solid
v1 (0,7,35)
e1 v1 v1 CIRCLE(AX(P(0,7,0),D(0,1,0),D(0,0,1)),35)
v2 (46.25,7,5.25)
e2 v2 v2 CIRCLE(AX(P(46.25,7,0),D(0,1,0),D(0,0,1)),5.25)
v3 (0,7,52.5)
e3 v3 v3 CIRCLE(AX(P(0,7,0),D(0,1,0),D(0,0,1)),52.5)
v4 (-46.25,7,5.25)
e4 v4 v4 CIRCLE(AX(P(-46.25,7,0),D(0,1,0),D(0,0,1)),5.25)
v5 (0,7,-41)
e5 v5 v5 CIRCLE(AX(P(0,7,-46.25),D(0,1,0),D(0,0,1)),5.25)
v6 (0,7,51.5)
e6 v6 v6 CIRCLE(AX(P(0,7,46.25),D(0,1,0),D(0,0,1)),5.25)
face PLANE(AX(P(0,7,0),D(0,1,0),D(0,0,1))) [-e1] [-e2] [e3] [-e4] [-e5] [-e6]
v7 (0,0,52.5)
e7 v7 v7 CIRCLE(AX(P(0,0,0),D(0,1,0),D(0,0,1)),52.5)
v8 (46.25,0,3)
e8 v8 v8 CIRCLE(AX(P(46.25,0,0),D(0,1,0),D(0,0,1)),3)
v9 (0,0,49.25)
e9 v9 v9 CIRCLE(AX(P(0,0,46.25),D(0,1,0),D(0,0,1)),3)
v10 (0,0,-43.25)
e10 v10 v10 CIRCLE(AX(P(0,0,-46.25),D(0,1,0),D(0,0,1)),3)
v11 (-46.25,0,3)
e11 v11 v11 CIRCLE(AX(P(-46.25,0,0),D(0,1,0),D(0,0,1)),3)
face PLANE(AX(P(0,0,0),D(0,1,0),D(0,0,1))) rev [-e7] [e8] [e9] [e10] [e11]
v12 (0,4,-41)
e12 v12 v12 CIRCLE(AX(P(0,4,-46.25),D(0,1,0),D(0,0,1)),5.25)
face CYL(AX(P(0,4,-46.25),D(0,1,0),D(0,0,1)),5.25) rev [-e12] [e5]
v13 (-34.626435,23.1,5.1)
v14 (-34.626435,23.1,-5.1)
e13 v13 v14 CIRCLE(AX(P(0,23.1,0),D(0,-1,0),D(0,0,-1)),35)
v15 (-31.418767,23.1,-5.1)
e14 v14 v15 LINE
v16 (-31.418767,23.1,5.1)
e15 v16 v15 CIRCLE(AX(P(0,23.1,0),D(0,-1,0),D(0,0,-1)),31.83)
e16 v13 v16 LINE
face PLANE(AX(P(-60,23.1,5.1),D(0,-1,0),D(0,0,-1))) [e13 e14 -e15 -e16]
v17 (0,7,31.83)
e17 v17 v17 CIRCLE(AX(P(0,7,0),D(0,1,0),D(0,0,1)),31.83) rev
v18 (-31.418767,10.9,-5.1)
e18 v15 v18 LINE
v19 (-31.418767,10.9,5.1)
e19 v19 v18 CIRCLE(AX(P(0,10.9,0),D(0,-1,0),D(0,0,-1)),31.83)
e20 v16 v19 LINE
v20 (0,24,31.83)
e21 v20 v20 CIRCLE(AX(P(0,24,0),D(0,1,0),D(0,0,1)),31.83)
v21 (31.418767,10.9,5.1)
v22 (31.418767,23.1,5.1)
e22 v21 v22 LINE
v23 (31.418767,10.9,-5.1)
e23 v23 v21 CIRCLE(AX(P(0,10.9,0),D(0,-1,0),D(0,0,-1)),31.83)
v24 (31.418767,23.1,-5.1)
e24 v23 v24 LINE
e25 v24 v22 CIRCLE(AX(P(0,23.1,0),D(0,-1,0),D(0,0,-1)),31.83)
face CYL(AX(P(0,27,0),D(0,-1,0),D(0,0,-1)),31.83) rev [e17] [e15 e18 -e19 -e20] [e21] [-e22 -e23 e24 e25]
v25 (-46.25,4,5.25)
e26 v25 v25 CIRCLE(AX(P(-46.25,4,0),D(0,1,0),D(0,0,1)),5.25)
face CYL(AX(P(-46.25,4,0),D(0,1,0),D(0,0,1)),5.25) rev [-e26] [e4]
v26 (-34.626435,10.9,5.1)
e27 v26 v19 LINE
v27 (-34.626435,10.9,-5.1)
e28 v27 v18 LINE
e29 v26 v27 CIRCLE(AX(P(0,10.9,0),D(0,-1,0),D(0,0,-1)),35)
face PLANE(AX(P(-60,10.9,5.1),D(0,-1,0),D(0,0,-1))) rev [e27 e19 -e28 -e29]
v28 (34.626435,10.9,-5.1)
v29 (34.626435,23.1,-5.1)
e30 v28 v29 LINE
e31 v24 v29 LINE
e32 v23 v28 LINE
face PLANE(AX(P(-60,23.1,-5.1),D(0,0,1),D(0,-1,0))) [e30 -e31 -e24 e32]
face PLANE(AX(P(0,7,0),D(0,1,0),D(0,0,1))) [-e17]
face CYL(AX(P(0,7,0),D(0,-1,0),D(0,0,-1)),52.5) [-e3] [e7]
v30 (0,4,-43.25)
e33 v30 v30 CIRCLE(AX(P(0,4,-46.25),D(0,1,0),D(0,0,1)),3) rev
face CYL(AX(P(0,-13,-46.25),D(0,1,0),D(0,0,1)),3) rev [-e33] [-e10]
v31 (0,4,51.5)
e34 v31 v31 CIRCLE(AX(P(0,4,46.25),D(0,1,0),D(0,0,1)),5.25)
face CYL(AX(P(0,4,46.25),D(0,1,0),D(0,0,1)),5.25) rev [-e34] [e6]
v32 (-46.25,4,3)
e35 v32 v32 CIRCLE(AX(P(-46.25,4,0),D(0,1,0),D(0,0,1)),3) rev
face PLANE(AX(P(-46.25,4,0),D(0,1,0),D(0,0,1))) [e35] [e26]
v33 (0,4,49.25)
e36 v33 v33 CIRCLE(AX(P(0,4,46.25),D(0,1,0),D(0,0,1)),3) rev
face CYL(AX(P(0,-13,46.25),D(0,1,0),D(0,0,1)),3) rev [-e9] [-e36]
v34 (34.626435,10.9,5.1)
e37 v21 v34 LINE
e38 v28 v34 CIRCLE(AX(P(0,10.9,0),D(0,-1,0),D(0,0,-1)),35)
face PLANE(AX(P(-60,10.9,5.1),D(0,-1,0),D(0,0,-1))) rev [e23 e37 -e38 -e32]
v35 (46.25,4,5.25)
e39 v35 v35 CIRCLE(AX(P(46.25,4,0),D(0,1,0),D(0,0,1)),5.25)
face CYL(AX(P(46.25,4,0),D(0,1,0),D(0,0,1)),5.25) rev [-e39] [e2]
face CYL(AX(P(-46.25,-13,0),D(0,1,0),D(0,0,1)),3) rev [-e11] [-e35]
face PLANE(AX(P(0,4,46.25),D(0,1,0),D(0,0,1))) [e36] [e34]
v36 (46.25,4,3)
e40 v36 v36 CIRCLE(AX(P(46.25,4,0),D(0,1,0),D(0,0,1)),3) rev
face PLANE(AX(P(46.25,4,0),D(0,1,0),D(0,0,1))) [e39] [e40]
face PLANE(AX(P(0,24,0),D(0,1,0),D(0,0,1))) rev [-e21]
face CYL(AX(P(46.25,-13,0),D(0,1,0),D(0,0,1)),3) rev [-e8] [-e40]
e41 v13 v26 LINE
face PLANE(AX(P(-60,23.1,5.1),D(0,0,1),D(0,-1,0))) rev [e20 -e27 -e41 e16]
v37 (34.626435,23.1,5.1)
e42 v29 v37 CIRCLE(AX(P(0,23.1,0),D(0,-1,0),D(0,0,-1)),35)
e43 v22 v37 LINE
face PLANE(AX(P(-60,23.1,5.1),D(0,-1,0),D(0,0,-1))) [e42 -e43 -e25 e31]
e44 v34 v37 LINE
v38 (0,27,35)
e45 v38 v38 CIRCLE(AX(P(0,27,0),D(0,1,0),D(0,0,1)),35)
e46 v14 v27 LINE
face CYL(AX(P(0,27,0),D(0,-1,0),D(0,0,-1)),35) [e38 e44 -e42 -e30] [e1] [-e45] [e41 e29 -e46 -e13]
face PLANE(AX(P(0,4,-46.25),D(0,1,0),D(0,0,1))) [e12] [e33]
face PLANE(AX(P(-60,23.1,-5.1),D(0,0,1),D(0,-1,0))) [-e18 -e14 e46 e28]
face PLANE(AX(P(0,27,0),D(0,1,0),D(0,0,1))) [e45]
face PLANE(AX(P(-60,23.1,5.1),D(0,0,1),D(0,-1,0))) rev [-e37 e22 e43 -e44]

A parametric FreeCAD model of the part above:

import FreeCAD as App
import Part
import Sketcher
Q = App.Units.Quantity


def add_polygon(sketch, points):
    """Adds a closed chain of lines whose ends are joined by coincident constraints."""
    first, n = sketch.GeometryCount, len(points)
    for a, b in zip(points, points[1:] + points[:1]):
        sketch.addGeometry(Part.LineSegment(App.Vector(*a, 0), App.Vector(*b, 0)), False)
    for i in range(n):
        sketch.addConstraint(Sketcher.Constraint("Coincident", first + i, 2, first + (i + 1) % n, 1))

doc = App.newDocument("Part")
body = doc.addObject("PartDesign::Body", "Body")

sketch1 = body.newObject("Sketcher::SketchObject", "Sketch")
sketch1.AttachmentSupport = (doc.getObject("XZ_Plane"), [""])
sketch1.MapMode = "FlatFace"
sketch1.addGeometry(Part.Circle(App.Vector(0, 0, 0), App.Vector(0, 0, 1), 52), False)
sketch1.addConstraint([
    Sketcher.Constraint("Coincident", 0, 3, -1, 1),
    Sketcher.Constraint("Diameter", 0, Q("105 mm")),
])
pad1 = body.newObject("PartDesign::Pad", "Pad")
pad1.Profile = sketch1
pad1.Length = 7
pad1.Reversed = True

sketch2 = body.newObject("Sketcher::SketchObject", "Sketch001")
sketch2.AttachmentSupport = (doc.getObject("XZ_Plane"), [""])
sketch2.MapMode = "FlatFace"
sketch2.AttachmentOffset = App.Placement(App.Vector(0, 0, -7), App.Rotation())
sketch2.addGeometry([
    Part.Circle(App.Vector(0, 0, 0), App.Vector(0, 0, 1), 35),
    Part.Circle(App.Vector(0, 0, 0), App.Vector(0, 0, 1), 32),
], False)
sketch2.addConstraint([
    Sketcher.Constraint("Coincident", 0, 3, -1, 1),
    Sketcher.Constraint("Coincident", 1, 3, -1, 1),
    Sketcher.Constraint("Diameter", 0, Q("70 mm")),
    Sketcher.Constraint("Diameter", 1, Q("63.66 mm")),
])
pad2 = body.newObject("PartDesign::Pad", "Pad001")
pad2.Profile = sketch2
pad2.Length = 20
pad2.Reversed = True

sketch3 = body.newObject("Sketcher::SketchObject", "Sketch002")
sketch3.AttachmentSupport = (doc.getObject("XZ_Plane"), [""])
sketch3.MapMode = "FlatFace"
sketch3.AttachmentOffset = App.Placement(App.Vector(0, 0, -7), App.Rotation())
sketch3.addGeometry([
    Part.Circle(App.Vector(0, -46.2, 0), App.Vector(0, 0, 1), 3),
    Part.Circle(App.Vector(46.2, 0, 0), App.Vector(0, 0, 1), 3),
    Part.Circle(App.Vector(0, 46.2, 0), App.Vector(0, 0, 1), 3),
    Part.Circle(App.Vector(-46.2, 0, 0), App.Vector(0, 0, 1), 3),
], False)
sketch3.addConstraint([
    Sketcher.Constraint("Equal", 0, 1),
    Sketcher.Constraint("Equal", 1, 2),
    Sketcher.Constraint("Equal", 2, 3),
    Sketcher.Constraint("Symmetric", 0, 3, 2, 3, -1, 1),
    Sketcher.Constraint("Symmetric", 1, 3, 3, 3, -1, 1),
    Sketcher.Constraint("PointOnObject", 0, 3, -2),
    Sketcher.Constraint("PointOnObject", 1, 3, -1),
    Sketcher.Constraint("Diameter", 0, Q("6 mm")),
    Sketcher.Constraint("DistanceY", 0, 3, 2, 3, Q("92.5 mm")),
    Sketcher.Constraint("DistanceX", 3, 3, 1, 3, Q("92.5 mm")),
])
pocket1 = body.newObject("PartDesign::Pocket", "Pocket")
pocket1.Profile = sketch3
pocket1.Length = 20
pocket1.Reversed = True

sketch4 = body.newObject("Sketcher::SketchObject", "Sketch003")
sketch4.AttachmentSupport = (doc.getObject("XZ_Plane"), [""])
sketch4.MapMode = "FlatFace"
sketch4.AttachmentOffset = App.Placement(App.Vector(0, 0, -7), App.Rotation())
sketch4.addGeometry([
    Part.Circle(App.Vector(0, -46, 0), App.Vector(0, 0, 1), 5),
    Part.Circle(App.Vector(46, 0, 0), App.Vector(0, 0, 1), 5),
    Part.Circle(App.Vector(0, 46, 0), App.Vector(0, 0, 1), 5),
    Part.Circle(App.Vector(-46, 0, 0), App.Vector(0, 0, 1), 5),
], False)
sketch4.addConstraint([
    Sketcher.Constraint("Equal", 0, 1),
    Sketcher.Constraint("Equal", 1, 2),
    Sketcher.Constraint("Equal", 2, 3),
    Sketcher.Constraint("Symmetric", 0, 3, 2, 3, -1, 1),
    Sketcher.Constraint("Symmetric", 1, 3, 3, 3, -1, 1),
    Sketcher.Constraint("PointOnObject", 0, 3, -2),
    Sketcher.Constraint("PointOnObject", 1, 3, -1),
    Sketcher.Constraint("Diameter", 0, Q("10.5 mm")),
    Sketcher.Constraint("DistanceY", 0, 3, 2, 3, Q("92.5 mm")),
    Sketcher.Constraint("DistanceX", 3, 3, 1, 3, Q("92.5 mm")),
])
pocket2 = body.newObject("PartDesign::Pocket", "Pocket001")
pocket2.Profile = sketch4
pocket2.Length = 3
pocket2.Reversed = True

sketch5 = body.newObject("Sketcher::SketchObject", "Sketch004")
sketch5.AttachmentSupport = (doc.getObject("YZ_Plane"), [""])
sketch5.MapMode = "FlatFace"
sketch5.AttachmentOffset = App.Placement(App.Vector(0, 0, 60), App.Rotation())
add_polygon(sketch5, [(23, 5), (11, 5), (11, -5), (23, -5)])
sketch5.addConstraint([
    Sketcher.Constraint("Horizontal", 0),
    Sketcher.Constraint("Vertical", 1),
    Sketcher.Constraint("Horizontal", 2),
    Sketcher.Constraint("Vertical", 3),
    Sketcher.Constraint("DistanceX", 0, 2, 0, 1, Q("12.2 mm")),
    Sketcher.Constraint("DistanceY", 1, 2, 1, 1, Q("10.2 mm")),
    Sketcher.Constraint("DistanceX", -1, 1, 0, 2, Q("10.9 mm")),
    Sketcher.Constraint("DistanceY", -1, 1, 0, 2, Q("5.1 mm")),
])
pocket3 = body.newObject("PartDesign::Pocket", "Pocket002")
pocket3.Profile = sketch5
pocket3.Length = 120

sketch6 = body.newObject("Sketcher::SketchObject", "Sketch005")
sketch6.AttachmentSupport = (doc.getObject("XZ_Plane"), [""])
sketch6.MapMode = "FlatFace"
sketch6.AttachmentOffset = App.Placement(App.Vector(0, 0, -24), App.Rotation())
sketch6.addGeometry(Part.Circle(App.Vector(0, 0, 0), App.Vector(0, 0, 1), 32), False)
sketch6.addConstraint([
    Sketcher.Constraint("Coincident", 0, 3, -1, 1),
    Sketcher.Constraint("Diameter", 0, Q("63.66 mm")),
])
pad3 = body.newObject("PartDesign::Pad", "Pad002")
pad3.Profile = sketch6
pad3.Length = 3
pad3.Reversed = True

doc.recompute()
